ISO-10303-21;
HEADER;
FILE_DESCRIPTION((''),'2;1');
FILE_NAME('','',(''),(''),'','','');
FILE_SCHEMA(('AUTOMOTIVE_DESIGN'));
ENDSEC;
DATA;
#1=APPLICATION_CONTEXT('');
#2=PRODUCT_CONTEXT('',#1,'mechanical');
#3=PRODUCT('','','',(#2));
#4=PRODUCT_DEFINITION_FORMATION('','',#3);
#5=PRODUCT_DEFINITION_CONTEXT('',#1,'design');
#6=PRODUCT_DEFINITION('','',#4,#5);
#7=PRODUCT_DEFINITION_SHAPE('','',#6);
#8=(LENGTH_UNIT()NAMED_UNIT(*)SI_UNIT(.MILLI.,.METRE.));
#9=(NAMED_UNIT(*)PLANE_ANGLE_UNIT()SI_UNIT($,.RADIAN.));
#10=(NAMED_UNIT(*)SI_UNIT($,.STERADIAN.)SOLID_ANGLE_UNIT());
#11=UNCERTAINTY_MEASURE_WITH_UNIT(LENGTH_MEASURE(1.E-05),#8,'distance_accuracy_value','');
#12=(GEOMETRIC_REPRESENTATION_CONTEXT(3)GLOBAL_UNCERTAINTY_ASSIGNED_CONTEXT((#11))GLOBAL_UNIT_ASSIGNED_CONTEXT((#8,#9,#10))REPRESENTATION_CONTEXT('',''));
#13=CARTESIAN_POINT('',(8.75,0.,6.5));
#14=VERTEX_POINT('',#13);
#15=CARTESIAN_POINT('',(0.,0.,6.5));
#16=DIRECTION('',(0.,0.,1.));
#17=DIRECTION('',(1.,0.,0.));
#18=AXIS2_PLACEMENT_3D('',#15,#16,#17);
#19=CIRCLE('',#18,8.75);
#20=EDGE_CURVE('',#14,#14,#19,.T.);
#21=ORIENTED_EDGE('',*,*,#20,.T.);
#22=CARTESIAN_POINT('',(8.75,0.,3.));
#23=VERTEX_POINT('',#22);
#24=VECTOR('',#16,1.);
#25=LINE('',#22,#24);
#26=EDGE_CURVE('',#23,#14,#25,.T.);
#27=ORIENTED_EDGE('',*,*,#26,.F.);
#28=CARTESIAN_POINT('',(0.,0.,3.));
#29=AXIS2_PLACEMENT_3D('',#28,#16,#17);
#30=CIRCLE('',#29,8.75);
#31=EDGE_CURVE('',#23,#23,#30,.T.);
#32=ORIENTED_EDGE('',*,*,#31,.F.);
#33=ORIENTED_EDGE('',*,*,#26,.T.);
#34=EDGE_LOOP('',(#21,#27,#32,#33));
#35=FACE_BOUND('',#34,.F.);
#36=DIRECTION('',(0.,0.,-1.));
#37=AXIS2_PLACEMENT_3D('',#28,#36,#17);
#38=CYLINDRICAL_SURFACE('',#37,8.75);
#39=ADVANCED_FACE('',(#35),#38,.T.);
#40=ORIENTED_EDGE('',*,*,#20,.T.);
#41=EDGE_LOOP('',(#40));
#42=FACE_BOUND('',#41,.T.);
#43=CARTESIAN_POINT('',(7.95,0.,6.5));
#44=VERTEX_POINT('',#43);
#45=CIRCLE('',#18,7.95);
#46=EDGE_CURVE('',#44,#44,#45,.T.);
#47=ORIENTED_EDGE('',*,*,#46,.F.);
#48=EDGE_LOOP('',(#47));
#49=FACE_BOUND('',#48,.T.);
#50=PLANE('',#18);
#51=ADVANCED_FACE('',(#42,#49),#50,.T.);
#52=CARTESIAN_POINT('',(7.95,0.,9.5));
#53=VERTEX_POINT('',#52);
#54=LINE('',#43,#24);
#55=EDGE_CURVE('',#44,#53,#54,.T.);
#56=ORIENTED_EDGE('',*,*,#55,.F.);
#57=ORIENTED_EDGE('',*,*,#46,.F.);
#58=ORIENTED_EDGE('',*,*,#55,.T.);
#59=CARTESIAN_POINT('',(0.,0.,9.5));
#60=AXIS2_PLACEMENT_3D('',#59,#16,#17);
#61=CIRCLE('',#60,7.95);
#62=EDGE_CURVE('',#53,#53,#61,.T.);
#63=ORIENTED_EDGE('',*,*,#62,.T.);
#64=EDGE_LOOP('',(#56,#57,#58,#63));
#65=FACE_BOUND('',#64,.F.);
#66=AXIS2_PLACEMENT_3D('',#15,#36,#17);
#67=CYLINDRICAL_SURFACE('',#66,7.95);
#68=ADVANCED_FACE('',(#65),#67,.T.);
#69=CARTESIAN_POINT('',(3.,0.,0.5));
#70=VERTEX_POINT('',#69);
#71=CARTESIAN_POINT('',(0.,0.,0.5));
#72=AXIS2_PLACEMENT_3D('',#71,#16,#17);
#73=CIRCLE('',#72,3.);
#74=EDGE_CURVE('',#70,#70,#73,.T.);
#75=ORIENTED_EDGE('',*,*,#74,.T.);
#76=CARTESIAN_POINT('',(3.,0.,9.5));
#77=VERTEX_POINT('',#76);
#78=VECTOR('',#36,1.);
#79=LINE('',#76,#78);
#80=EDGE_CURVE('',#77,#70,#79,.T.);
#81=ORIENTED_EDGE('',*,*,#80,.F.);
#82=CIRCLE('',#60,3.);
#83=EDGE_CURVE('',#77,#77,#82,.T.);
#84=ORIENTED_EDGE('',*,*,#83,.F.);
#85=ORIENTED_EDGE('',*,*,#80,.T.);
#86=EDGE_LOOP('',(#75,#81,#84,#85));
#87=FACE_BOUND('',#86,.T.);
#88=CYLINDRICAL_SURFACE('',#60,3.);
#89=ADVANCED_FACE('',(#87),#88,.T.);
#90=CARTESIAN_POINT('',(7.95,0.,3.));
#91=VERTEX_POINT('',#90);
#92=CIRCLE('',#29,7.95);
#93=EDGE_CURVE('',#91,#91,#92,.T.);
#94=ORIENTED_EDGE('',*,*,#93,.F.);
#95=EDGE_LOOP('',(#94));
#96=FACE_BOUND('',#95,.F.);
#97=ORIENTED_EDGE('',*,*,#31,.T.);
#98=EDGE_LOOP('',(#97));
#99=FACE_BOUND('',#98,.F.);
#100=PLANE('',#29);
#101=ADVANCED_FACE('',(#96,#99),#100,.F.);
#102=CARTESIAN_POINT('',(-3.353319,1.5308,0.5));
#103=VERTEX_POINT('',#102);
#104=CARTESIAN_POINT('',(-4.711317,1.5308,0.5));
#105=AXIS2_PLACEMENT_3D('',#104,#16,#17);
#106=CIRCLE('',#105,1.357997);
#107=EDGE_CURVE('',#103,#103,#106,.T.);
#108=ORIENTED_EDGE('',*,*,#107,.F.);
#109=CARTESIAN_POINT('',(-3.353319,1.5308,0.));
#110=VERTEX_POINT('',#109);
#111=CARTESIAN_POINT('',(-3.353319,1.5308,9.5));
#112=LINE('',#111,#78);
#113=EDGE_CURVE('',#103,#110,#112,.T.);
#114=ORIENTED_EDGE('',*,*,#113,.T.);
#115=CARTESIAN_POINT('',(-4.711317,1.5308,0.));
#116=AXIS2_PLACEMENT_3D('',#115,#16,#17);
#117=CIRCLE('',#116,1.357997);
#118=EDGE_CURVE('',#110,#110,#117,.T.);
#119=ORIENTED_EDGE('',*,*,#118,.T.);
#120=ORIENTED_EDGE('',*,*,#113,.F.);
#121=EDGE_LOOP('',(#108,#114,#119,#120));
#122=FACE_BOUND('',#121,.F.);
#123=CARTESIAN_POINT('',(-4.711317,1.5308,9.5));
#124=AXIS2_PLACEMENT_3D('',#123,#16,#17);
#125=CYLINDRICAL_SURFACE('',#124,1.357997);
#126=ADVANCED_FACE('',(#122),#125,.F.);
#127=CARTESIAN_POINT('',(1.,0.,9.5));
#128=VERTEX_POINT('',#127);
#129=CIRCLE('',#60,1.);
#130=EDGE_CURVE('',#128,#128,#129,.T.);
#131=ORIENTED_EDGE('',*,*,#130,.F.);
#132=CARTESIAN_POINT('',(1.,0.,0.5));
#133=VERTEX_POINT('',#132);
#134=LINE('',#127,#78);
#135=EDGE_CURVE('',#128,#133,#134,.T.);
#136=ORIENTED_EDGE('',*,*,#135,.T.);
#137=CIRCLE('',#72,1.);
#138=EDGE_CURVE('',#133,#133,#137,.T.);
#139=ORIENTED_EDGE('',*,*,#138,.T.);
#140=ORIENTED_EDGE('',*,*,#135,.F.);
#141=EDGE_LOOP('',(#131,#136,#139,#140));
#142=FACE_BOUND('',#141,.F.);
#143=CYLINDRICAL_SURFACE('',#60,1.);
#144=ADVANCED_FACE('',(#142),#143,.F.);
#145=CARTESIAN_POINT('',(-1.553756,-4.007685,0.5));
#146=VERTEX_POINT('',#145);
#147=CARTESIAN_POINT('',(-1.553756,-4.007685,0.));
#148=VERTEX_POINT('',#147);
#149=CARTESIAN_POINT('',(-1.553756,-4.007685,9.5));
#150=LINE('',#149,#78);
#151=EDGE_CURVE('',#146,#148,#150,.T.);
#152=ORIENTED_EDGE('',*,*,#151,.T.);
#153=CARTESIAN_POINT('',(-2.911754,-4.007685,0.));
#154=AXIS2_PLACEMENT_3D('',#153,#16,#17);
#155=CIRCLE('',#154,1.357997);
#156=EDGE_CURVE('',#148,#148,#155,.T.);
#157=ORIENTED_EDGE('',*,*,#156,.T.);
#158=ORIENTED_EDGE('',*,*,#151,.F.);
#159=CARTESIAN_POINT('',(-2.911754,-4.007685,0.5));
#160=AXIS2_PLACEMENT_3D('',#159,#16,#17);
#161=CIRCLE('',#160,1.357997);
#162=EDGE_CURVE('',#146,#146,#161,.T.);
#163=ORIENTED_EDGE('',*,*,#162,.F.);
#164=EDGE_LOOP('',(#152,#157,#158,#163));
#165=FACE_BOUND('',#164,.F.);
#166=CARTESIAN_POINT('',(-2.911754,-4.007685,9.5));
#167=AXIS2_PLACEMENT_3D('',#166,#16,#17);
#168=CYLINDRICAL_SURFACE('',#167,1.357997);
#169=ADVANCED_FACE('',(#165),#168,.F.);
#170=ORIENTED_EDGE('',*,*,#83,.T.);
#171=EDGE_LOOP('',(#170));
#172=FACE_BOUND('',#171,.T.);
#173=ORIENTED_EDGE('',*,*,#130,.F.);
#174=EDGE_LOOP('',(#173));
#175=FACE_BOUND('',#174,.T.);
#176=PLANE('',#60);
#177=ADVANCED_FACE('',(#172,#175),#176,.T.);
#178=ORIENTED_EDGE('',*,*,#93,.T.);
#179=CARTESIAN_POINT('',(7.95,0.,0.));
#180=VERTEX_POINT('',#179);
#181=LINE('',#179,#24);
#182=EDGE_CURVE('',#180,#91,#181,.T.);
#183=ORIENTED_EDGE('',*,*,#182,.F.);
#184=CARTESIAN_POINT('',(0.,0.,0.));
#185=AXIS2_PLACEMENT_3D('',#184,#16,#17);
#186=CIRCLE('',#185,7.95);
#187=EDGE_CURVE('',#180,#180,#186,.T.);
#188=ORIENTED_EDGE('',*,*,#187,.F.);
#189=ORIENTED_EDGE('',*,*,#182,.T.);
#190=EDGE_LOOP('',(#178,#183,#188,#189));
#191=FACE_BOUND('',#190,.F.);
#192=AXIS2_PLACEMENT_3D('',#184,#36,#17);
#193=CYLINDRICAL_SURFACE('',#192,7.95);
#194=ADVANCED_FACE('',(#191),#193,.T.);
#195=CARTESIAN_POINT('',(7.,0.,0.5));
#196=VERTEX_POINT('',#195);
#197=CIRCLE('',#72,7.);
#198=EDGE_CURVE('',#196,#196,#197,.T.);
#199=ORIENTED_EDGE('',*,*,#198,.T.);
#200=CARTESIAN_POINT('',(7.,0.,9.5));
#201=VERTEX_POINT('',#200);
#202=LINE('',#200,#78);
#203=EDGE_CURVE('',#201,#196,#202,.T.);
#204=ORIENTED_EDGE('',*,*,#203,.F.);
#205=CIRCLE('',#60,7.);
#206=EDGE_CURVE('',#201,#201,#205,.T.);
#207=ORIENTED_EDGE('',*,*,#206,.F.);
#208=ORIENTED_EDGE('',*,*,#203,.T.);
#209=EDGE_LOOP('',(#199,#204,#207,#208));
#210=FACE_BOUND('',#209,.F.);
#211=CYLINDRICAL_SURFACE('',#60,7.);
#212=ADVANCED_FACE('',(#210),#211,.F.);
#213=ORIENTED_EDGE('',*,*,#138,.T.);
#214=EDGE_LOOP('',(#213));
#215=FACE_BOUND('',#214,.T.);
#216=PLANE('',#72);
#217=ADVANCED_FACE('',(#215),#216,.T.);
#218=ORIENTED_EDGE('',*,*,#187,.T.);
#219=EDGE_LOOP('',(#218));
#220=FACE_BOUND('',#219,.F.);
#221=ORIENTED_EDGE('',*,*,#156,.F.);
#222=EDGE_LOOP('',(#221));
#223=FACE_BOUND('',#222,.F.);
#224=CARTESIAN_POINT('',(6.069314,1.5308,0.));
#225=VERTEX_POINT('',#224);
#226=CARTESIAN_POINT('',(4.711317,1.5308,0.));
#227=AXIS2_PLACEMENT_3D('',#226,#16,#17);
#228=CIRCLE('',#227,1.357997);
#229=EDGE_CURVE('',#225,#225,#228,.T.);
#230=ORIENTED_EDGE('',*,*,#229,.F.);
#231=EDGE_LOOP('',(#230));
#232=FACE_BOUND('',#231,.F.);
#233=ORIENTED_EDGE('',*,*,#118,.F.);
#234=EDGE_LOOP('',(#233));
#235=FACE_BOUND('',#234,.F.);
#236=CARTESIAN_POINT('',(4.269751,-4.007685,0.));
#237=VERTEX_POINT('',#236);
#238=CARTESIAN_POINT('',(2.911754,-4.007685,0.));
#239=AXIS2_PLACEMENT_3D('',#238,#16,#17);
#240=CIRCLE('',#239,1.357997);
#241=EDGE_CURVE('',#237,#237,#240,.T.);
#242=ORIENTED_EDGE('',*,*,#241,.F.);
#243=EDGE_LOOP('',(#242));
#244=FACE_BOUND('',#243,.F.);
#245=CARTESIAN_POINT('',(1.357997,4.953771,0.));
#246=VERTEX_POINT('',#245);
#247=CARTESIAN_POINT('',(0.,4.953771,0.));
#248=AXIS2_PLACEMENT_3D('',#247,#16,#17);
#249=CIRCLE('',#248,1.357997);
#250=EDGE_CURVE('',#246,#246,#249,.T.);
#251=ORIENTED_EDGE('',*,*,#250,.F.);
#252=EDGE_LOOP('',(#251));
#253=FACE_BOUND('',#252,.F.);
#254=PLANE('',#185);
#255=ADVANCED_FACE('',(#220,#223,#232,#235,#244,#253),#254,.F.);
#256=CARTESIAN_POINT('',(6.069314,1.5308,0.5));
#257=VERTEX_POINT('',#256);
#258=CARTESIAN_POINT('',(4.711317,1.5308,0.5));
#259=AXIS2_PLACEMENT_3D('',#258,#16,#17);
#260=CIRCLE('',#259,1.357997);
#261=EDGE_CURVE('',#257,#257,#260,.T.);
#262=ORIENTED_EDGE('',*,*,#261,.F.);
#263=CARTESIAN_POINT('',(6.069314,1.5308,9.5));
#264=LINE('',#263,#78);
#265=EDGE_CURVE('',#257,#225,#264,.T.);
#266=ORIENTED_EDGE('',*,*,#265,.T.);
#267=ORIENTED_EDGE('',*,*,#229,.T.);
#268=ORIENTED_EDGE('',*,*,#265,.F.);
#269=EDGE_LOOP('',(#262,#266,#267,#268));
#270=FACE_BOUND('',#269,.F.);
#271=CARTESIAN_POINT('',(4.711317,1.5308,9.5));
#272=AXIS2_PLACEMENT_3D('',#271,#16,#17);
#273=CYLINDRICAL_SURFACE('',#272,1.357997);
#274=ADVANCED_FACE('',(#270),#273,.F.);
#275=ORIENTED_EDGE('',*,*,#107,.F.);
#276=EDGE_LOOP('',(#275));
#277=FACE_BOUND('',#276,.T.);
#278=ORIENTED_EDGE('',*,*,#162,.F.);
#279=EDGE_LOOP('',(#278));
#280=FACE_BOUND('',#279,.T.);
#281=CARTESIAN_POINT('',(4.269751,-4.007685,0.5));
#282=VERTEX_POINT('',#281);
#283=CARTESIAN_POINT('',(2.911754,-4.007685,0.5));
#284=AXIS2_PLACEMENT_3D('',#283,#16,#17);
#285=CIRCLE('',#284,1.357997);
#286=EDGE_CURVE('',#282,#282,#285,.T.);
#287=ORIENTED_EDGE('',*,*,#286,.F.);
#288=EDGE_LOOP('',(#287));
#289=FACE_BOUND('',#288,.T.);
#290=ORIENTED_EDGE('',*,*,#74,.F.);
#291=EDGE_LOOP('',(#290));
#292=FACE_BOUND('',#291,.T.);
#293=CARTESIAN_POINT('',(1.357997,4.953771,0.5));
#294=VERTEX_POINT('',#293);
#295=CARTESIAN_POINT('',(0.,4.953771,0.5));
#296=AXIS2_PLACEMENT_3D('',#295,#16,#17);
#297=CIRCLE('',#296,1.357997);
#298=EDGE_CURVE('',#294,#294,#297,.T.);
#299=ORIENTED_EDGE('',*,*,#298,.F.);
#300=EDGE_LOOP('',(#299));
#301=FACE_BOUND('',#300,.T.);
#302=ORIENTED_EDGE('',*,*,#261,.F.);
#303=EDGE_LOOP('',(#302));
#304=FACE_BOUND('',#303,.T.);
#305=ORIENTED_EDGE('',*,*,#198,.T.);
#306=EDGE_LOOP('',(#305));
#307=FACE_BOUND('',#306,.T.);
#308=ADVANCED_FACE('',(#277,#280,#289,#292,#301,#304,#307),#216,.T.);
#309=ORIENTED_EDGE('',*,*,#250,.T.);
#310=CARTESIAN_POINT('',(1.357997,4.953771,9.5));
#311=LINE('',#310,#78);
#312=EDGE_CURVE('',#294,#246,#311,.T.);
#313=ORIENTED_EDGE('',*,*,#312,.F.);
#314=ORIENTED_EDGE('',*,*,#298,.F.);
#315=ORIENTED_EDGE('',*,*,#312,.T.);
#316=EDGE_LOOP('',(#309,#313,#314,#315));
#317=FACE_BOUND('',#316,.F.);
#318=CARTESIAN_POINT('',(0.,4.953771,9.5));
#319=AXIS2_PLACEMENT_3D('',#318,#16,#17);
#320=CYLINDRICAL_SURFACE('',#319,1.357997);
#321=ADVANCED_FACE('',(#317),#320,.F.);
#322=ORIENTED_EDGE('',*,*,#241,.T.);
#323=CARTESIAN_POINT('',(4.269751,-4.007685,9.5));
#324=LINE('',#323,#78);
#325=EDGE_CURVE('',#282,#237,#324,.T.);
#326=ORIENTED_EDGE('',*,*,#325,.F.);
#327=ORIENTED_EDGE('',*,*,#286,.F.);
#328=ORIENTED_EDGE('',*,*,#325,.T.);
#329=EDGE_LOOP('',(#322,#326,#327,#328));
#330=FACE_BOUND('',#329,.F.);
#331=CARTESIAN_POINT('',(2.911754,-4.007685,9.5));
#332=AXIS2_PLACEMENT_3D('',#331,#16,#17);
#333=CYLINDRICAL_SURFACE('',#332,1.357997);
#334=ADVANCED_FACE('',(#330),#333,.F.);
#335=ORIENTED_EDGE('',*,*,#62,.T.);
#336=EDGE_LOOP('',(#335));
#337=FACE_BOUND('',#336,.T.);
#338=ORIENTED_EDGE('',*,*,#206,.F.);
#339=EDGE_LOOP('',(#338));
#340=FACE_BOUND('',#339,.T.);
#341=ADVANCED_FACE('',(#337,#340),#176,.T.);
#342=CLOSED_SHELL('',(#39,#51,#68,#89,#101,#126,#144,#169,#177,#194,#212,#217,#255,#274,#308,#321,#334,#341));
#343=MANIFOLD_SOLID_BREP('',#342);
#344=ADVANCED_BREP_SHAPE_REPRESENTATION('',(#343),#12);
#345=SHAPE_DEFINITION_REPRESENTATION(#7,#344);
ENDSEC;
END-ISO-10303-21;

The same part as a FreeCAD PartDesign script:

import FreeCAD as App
import Part
import Sketcher
from FreeCAD import Vector

doc = App.newDocument("Part")
body = doc.addObject("PartDesign::Body", "Body")

# Sketch on XY plane
sketch1 = body.newObject("Sketcher::SketchObject", "Sketch")
sketch1.AttachmentSupport = (doc.getObject("XY_Plane"), [""])
sketch1.MapMode = "FlatFace"
sketch1.addGeometry(Part.Circle(Vector(0, 0, 0), Vector(0, 0, 1), 8), False)
sketch1.addConstraint([
    Sketcher.Constraint("Coincident", 0, 3, -1, 1),
    Sketcher.Constraint("Diameter", 0, 15.9),
])
pad1 = body.newObject("PartDesign::Pad", "Pad")
pad1.Profile = sketch1
pad1.Length = 3

# Sketch on XY plane
sketch2 = body.newObject("Sketcher::SketchObject", "Sketch001")
sketch2.AttachmentSupport = (doc.getObject("XY_Plane"), [""])
sketch2.MapMode = "FlatFace"
sketch2.AttachmentOffset = App.Placement(Vector(0, 0, 3), App.Rotation())
sketch2.addGeometry(Part.Circle(Vector(0, 0, 0), Vector(0, 0, 1), 9), False)
sketch2.addConstraint([
    Sketcher.Constraint("Coincident", 0, 3, -1, 1),
    Sketcher.Constraint("Diameter", 0, 17.5),
])
pad2 = body.newObject("PartDesign::Pad", "Pad001")
pad2.Profile = sketch2
pad2.Length = 3.5

# Sketch on XY plane
sketch3 = body.newObject("Sketcher::SketchObject", "Sketch002")
sketch3.AttachmentSupport = (doc.getObject("XY_Plane"), [""])
sketch3.MapMode = "FlatFace"
sketch3.AttachmentOffset = App.Placement(Vector(0, 0, 6.5), App.Rotation())
sketch3.addGeometry(Part.Circle(Vector(0, 0, 0), Vector(0, 0, 1), 8), False)
sketch3.addConstraint([
    Sketcher.Constraint("Coincident", 0, 3, -1, 1),
    Sketcher.Constraint("Diameter", 0, 15.9),
])
pad3 = body.newObject("PartDesign::Pad", "Pad002")
pad3.Profile = sketch3
pad3.Length = 3

# Sketch on XY plane
sketch4 = body.newObject("Sketcher::SketchObject", "Sketch003")
sketch4.AttachmentSupport = (doc.getObject("XY_Plane"), [""])
sketch4.MapMode = "FlatFace"
sketch4.AttachmentOffset = App.Placement(Vector(0, 0, 9.5), App.Rotation())
sketch4.addGeometry([
    Part.Circle(Vector(0, 5, 0), Vector(0, 0, 1), 1.4),  # 0
    Part.Circle(Vector(-4.7, 1.5, 0), Vector(0, 0, 1), 1.4),  # 1
    Part.Circle(Vector(-2.9, -4, 0), Vector(0, 0, 1), 1.4),  # 2
    Part.Circle(Vector(2.9, -4, 0), Vector(0, 0, 1), 1.4),  # 3
    Part.Circle(Vector(4.7, 1.5, 0), Vector(0, 0, 1), 1.4),  # 4
], False)
sketch4.addConstraint([
    Sketcher.Constraint("Equal", 0, 1),
    Sketcher.Constraint("Equal", 1, 2),
    Sketcher.Constraint("Equal", 2, 3),
    Sketcher.Constraint("Equal", 3, 4),
    Sketcher.Constraint("Symmetric", 2, 3, 3, 3, -2),
    Sketcher.Constraint("Symmetric", 1, 3, 4, 3, -2),
    Sketcher.Constraint("PointOnObject", 0, 3, -2),
    Sketcher.Constraint("Diameter", 0, 2.715995),
    Sketcher.Constraint("DistanceY", -1, 1, 1, 3, 1.5308),
    Sketcher.Constraint("DistanceY", -1, 1, 0, 3, 4.953771),
    Sketcher.Constraint("DistanceX", 1, 3, 3, 3, 7.62307),
    Sketcher.Constraint("DistanceX", 1, 3, -1, 1, 4.711317),
    Sketcher.Constraint("DistanceY", 2, 3, -1, 1, 4.007685),
])
pocket1 = body.newObject("PartDesign::Pocket", "Pocket")
pocket1.Profile = sketch4
pocket1.Length = 20.4

# Sketch on XY plane
sketch5 = body.newObject("Sketcher::SketchObject", "Sketch004")
sketch5.AttachmentSupport = (doc.getObject("XY_Plane"), [""])
sketch5.MapMode = "FlatFace"
sketch5.AttachmentOffset = App.Placement(Vector(0, 0, 9.5), App.Rotation())
sketch5.addGeometry([
    Part.Circle(Vector(0, 0, 0), Vector(0, 0, 1), 7),
    Part.Circle(Vector(0, 0, 0), Vector(0, 0, 1), 3),
    Part.Circle(Vector(0, 0, 0), Vector(0, 0, 1), 1),
], False)
sketch5.addConstraint([
    Sketcher.Constraint("Coincident", 0, 3, -1, 1),
    Sketcher.Constraint("Coincident", 1, 3, -1, 1),
    Sketcher.Constraint("Coincident", 2, 3, -1, 1),
    Sketcher.Constraint("Diameter", 0, 14.0),
    Sketcher.Constraint("Diameter", 1, 6.0),
    Sketcher.Constraint("Diameter", 2, 2.0),
])
pocket2 = body.newObject("PartDesign::Pocket", "Pocket001")
pocket2.Profile = sketch5
pocket2.Length = 9

doc.recompute()
